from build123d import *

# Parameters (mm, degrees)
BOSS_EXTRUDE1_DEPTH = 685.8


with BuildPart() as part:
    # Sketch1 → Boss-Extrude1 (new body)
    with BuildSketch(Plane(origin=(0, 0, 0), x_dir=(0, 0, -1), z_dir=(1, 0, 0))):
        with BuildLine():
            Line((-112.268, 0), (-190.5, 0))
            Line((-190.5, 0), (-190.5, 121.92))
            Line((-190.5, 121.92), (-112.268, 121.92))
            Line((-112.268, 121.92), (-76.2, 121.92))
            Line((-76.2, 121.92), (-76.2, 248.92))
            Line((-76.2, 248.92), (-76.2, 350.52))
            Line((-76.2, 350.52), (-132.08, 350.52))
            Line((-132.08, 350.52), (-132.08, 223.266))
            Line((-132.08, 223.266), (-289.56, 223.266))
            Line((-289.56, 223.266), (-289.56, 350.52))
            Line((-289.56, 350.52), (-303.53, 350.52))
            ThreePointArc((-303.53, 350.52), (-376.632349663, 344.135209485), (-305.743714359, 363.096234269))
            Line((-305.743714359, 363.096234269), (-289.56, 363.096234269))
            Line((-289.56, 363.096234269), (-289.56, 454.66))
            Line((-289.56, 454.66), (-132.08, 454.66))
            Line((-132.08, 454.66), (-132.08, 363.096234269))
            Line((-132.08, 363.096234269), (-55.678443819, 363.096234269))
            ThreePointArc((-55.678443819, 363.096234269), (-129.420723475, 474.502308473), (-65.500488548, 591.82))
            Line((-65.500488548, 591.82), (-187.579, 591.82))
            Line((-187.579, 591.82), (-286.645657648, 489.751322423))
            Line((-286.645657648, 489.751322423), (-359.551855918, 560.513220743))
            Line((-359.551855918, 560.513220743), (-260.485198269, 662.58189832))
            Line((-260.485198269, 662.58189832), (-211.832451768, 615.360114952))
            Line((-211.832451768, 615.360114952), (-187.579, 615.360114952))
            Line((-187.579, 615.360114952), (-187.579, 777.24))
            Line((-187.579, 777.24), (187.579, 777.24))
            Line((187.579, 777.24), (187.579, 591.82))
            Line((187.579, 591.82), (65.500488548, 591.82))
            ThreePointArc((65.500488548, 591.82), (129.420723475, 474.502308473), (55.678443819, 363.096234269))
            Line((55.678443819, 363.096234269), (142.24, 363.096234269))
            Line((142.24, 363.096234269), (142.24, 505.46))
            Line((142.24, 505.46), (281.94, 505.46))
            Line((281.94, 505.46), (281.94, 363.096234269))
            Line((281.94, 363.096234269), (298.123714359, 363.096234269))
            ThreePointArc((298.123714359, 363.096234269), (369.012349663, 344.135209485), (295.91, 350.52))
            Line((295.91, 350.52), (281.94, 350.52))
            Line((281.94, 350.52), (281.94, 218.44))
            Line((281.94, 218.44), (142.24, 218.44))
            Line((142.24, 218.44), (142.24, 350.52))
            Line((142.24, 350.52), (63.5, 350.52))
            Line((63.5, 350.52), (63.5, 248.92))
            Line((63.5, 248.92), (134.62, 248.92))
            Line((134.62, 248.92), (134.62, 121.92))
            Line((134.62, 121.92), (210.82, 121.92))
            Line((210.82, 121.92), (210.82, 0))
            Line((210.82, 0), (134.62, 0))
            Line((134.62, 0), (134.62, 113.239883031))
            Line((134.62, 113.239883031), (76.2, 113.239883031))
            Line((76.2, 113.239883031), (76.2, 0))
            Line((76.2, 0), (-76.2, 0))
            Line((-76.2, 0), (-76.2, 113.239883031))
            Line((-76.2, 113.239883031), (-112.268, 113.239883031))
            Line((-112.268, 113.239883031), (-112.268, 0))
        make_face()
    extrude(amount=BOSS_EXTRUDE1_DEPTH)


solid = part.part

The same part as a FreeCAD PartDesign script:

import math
import FreeCAD as App
import Part
import Sketcher

V = App.Vector
Q = App.Units.Quantity

doc = App.newDocument("Part")
body = doc.addObject("PartDesign::Body", "Body")

# Sketch on YZ plane
sketch1 = body.newObject("Sketcher::SketchObject", "Sketch")
sketch1.AttachmentSupport = (doc.getObject("YZ_Plane"), [""])
sketch1.MapMode = "FlatFace"
sketch1.addGeometry(Part.LineSegment(V(0, 190, 0), V(0, 112, 0)), False)
sketch1.addGeometry(Part.LineSegment(V(0, 112, 0), V(113, 112, 0)), False)
sketch1.addGeometry(Part.LineSegment(V(113, 112, 0), V(113, 76, 0)), False)
sketch1.addGeometry(Part.LineSegment(V(113, 76, 0), V(0, 76, 0)), False)
sketch1.addGeometry(Part.LineSegment(V(0, 76, 0), V(0, -76, 0)), False)
sketch1.addGeometry(Part.LineSegment(V(0, -76, 0), V(113, -76, 0)), False)
sketch1.addGeometry(Part.LineSegment(V(113, -76, 0), V(113, -135, 0)), False)
sketch1.addGeometry(Part.LineSegment(V(113, -135, 0), V(0, -135, 0)), False)
sketch1.addGeometry(Part.LineSegment(V(0, -135, 0), V(0, -211, 0)), False)
sketch1.addGeometry(Part.LineSegment(V(0, -211, 0), V(122, -211, 0)), False)
sketch1.addGeometry(Part.LineSegment(V(122, -211, 0), V(122, -135, 0)), False)
sketch1.addGeometry(Part.LineSegment(V(122, -135, 0), V(249, -135, 0)), False)
sketch1.addGeometry(Part.LineSegment(V(249, -135, 0), V(249, -64, 0)), False)
sketch1.addGeometry(Part.LineSegment(V(249, -64, 0), V(351, -64, 0)), False)
sketch1.addGeometry(Part.LineSegment(V(351, -64, 0), V(351, -142, 0)), False)
sketch1.addGeometry(Part.LineSegment(V(351, -142, 0), V(218, -142, 0)), False)
sketch1.addGeometry(Part.LineSegment(V(218, -142, 0), V(218, -282, 0)), False)
sketch1.addGeometry(Part.LineSegment(V(218, -282, 0), V(351, -282, 0)), False)
sketch1.addGeometry(Part.LineSegment(V(351, -282, 0), V(351, -296, 0)), False)
sketch1.addGeometry(Part.ArcOfCircle(Part.Circle(V(351, -333, 0), V(0, 0, 1), 37), math.radians(90), math.radians(430)), False)
sketch1.addGeometry(Part.LineSegment(V(363, -298, 0), V(363, -282, 0)), False)
sketch1.addGeometry(Part.LineSegment(V(363, -282, 0), V(505, -282, 0)), False)
sketch1.addGeometry(Part.LineSegment(V(505, -282, 0), V(505, -142, 0)), False)
sketch1.addGeometry(Part.LineSegment(V(505, -142, 0), V(363, -142, 0)), False)
sketch1.addGeometry(Part.LineSegment(V(363, -142, 0), V(363, -56, 0)), False)
sketch1.addGeometry(Part.ArcOfCircle(Part.Circle(V(480, 0, 0), V(0, 0, 1), 130), math.radians(-155), math.radians(-30)), False)
sketch1.addGeometry(Part.LineSegment(V(592, -66, 0), V(592, -188, 0)), False)
sketch1.addGeometry(Part.LineSegment(V(592, -188, 0), V(777, -188, 0)), False)
sketch1.addGeometry(Part.LineSegment(V(777, -188, 0), V(777, 188, 0)), False)
sketch1.addGeometry(Part.LineSegment(V(777, 188, 0), V(615, 188, 0)), False)
sketch1.addGeometry(Part.LineSegment(V(615, 188, 0), V(615, 212, 0)), False)
sketch1.addGeometry(Part.LineSegment(V(615, 212, 0), V(663, 260, 0)), False)
sketch1.addGeometry(Part.LineSegment(V(663, 260, 0), V(561, 360, 0)), False)
sketch1.addGeometry(Part.LineSegment(V(561, 360, 0), V(490, 287, 0)), False)
sketch1.addGeometry(Part.LineSegment(V(490, 287, 0), V(592, 188, 0)), False)
sketch1.addGeometry(Part.LineSegment(V(592, 188, 0), V(592, 66, 0)), False)
sketch1.addGeometry(Part.ArcOfCircle(Part.Circle(V(480, 0, 0), V(0, 0, 1), 130), math.radians(30), math.radians(155)), False)
sketch1.addGeometry(Part.LineSegment(V(363, 56, 0), V(363, 132, 0)), False)
sketch1.addGeometry(Part.LineSegment(V(363, 132, 0), V(455, 132, 0)), False)
sketch1.addGeometry(Part.LineSegment(V(455, 132, 0), V(455, 290, 0)), False)
sketch1.addGeometry(Part.LineSegment(V(455, 290, 0), V(363, 290, 0)), False)
sketch1.addGeometry(Part.LineSegment(V(363, 290, 0), V(363, 306, 0)), False)
sketch1.addGeometry(Part.ArcOfCircle(Part.Circle(V(351, 340, 0), V(0, 0, 1), 37), math.radians(-70), math.radians(270)), False)
sketch1.addGeometry(Part.LineSegment(V(351, 304, 0), V(351, 290, 0)), False)
sketch1.addGeometry(Part.LineSegment(V(351, 290, 0), V(223, 290, 0)), False)
sketch1.addGeometry(Part.LineSegment(V(223, 290, 0), V(223, 132, 0)), False)
sketch1.addGeometry(Part.LineSegment(V(223, 132, 0), V(351, 132, 0)), False)
sketch1.addGeometry(Part.LineSegment(V(351, 132, 0), V(351, 76, 0)), False)
sketch1.addGeometry(Part.LineSegment(V(351, 76, 0), V(122, 76, 0)), False)
sketch1.addGeometry(Part.LineSegment(V(122, 76, 0), V(122, 190, 0)), False)
sketch1.addGeometry(Part.LineSegment(V(122, 190, 0), V(0, 190, 0)), False)
sketch1.addConstraint(Sketcher.Constraint("Coincident", 0, 2, 1, 1))
sketch1.addConstraint(Sketcher.Constraint("Coincident", 1, 2, 2, 1))
sketch1.addConstraint(Sketcher.Constraint("Coincident", 2, 2, 3, 1))
sketch1.addConstraint(Sketcher.Constraint("Coincident", 3, 2, 4, 1))
sketch1.addConstraint(Sketcher.Constraint("Coincident", 4, 2, 5, 1))
sketch1.addConstraint(Sketcher.Constraint("Coincident", 5, 2, 6, 1))
sketch1.addConstraint(Sketcher.Constraint("Coincident", 6, 2, 7, 1))
sketch1.addConstraint(Sketcher.Constraint("Coincident", 7, 2, 8, 1))
sketch1.addConstraint(Sketcher.Constraint("Coincident", 8, 2, 9, 1))
sketch1.addConstraint(Sketcher.Constraint("Coincident", 9, 2, 10, 1))
sketch1.addConstraint(Sketcher.Constraint("Coincident", 10, 2, 11, 1))
sketch1.addConstraint(Sketcher.Constraint("Coincident", 11, 2, 12, 1))
sketch1.addConstraint(Sketcher.Constraint("Coincident", 12, 2, 13, 1))
sketch1.addConstraint(Sketcher.Constraint("Coincident", 13, 2, 14, 1))
sketch1.addConstraint(Sketcher.Constraint("Coincident", 14, 2, 15, 1))
sketch1.addConstraint(Sketcher.Constraint("Coincident", 15, 2, 16, 1))
sketch1.addConstraint(Sketcher.Constraint("Coincident", 16, 2, 17, 1))
sketch1.addConstraint(Sketcher.Constraint("Coincident", 17, 2, 18, 1))
sketch1.addConstraint(Sketcher.Constraint("Coincident", 18, 2, 19, 1))
sketch1.addConstraint(Sketcher.Constraint("Coincident", 19, 2, 20, 1))
sketch1.addConstraint(Sketcher.Constraint("Coincident", 20, 2, 21, 1))
sketch1.addConstraint(Sketcher.Constraint("Coincident", 21, 2, 22, 1))
sketch1.addConstraint(Sketcher.Constraint("Coincident", 22, 2, 23, 1))
sketch1.addConstraint(Sketcher.Constraint("Coincident", 23, 2, 24, 1))
sketch1.addConstraint(Sketcher.Constraint("Coincident", 24, 2, 25, 1))
sketch1.addConstraint(Sketcher.Constraint("Coincident", 25, 2, 26, 1))
sketch1.addConstraint(Sketcher.Constraint("Coincident", 26, 2, 27, 1))
sketch1.addConstraint(Sketcher.Constraint("Coincident", 27, 2, 28, 1))
sketch1.addConstraint(Sketcher.Constraint("Coincident", 28, 2, 29, 1))
sketch1.addConstraint(Sketcher.Constraint("Coincident", 29, 2, 30, 1))
sketch1.addConstraint(Sketcher.Constraint("Coincident", 30, 2, 31, 1))
sketch1.addConstraint(Sketcher.Constraint("Coincident", 31, 2, 32, 1))
sketch1.addConstraint(Sketcher.Constraint("Coincident", 32, 2, 33, 1))
sketch1.addConstraint(Sketcher.Constraint("Coincident", 33, 2, 34, 1))
sketch1.addConstraint(Sketcher.Constraint("Coincident", 34, 2, 35, 1))
sketch1.addConstraint(Sketcher.Constraint("Coincident", 35, 2, 36, 1))
sketch1.addConstraint(Sketcher.Constraint("Coincident", 36, 2, 37, 1))
sketch1.addConstraint(Sketcher.Constraint("Coincident", 37, 2, 38, 1))
sketch1.addConstraint(Sketcher.Constraint("Coincident", 38, 2, 39, 1))
sketch1.addConstraint(Sketcher.Constraint("Coincident", 39, 2, 40, 1))
sketch1.addConstraint(Sketcher.Constraint("Coincident", 40, 2, 41, 1))
sketch1.addConstraint(Sketcher.Constraint("Coincident", 41, 2, 42, 1))
sketch1.addConstraint(Sketcher.Constraint("Coincident", 42, 2, 43, 1))
sketch1.addConstraint(Sketcher.Constraint("Coincident", 43, 2, 44, 1))
sketch1.addConstraint(Sketcher.Constraint("Coincident", 44, 2, 45, 1))
sketch1.addConstraint(Sketcher.Constraint("Coincident", 45, 2, 46, 1))
sketch1.addConstraint(Sketcher.Constraint("Coincident", 46, 2, 47, 1))
sketch1.addConstraint(Sketcher.Constraint("Coincident", 47, 2, 48, 1))
sketch1.addConstraint(Sketcher.Constraint("Coincident", 48, 2, 49, 1))
sketch1.addConstraint(Sketcher.Constraint("Coincident", 49, 2, 50, 1))
sketch1.addConstraint(Sketcher.Constraint("Coincident", 50, 2, 0, 1))
sketch1.addConstraint(Sketcher.Constraint("Vertical", 0))
sketch1.addConstraint(Sketcher.Constraint("Horizontal", 1))
sketch1.addConstraint(Sketcher.Constraint("Vertical", 2))
sketch1.addConstraint(Sketcher.Constraint("Horizontal", 3))
sketch1.addConstraint(Sketcher.Constraint("Vertical", 4))
sketch1.addConstraint(Sketcher.Constraint("Horizontal", 5))
sketch1.addConstraint(Sketcher.Constraint("Vertical", 6))
sketch1.addConstraint(Sketcher.Constraint("Horizontal", 7))
sketch1.addConstraint(Sketcher.Constraint("Vertical", 8))
sketch1.addConstraint(Sketcher.Constraint("Horizontal", 9))
sketch1.addConstraint(Sketcher.Constraint("Vertical", 10))
sketch1.addConstraint(Sketcher.Constraint("Horizontal", 11))
sketch1.addConstraint(Sketcher.Constraint("Vertical", 12))
sketch1.addConstraint(Sketcher.Constraint("Horizontal", 13))
sketch1.addConstraint(Sketcher.Constraint("Vertical", 14))
sketch1.addConstraint(Sketcher.Constraint("Horizontal", 15))
sketch1.addConstraint(Sketcher.Constraint("Vertical", 16))
sketch1.addConstraint(Sketcher.Constraint("Horizontal", 17))
sketch1.addConstraint(Sketcher.Constraint("Vertical", 18))
sketch1.addConstraint(Sketcher.Constraint("Vertical", 20))
sketch1.addConstraint(Sketcher.Constraint("Horizontal", 21))
sketch1.addConstraint(Sketcher.Constraint("Vertical", 22))
sketch1.addConstraint(Sketcher.Constraint("Horizontal", 23))
sketch1.addConstraint(Sketcher.Constraint("Vertical", 24))
sketch1.addConstraint(Sketcher.Constraint("Vertical", 26))
sketch1.addConstraint(Sketcher.Constraint("Horizontal", 27))
sketch1.addConstraint(Sketcher.Constraint("Vertical", 28))
sketch1.addConstraint(Sketcher.Constraint("Horizontal", 29))
sketch1.addConstraint(Sketcher.Constraint("Vertical", 30))
sketch1.addConstraint(Sketcher.Constraint("Vertical", 35))
sketch1.addConstraint(Sketcher.Constraint("Vertical", 37))
sketch1.addConstraint(Sketcher.Constraint("Horizontal", 38))
sketch1.addConstraint(Sketcher.Constraint("Vertical", 39))
sketch1.addConstraint(Sketcher.Constraint("Horizontal", 40))
sketch1.addConstraint(Sketcher.Constraint("Vertical", 41))
sketch1.addConstraint(Sketcher.Constraint("Vertical", 43))
sketch1.addConstraint(Sketcher.Constraint("Horizontal", 44))
sketch1.addConstraint(Sketcher.Constraint("Vertical", 45))
sketch1.addConstraint(Sketcher.Constraint("Horizontal", 46))
sketch1.addConstraint(Sketcher.Constraint("Vertical", 47))
sketch1.addConstraint(Sketcher.Constraint("Horizontal", 48))
sketch1.addConstraint(Sketcher.Constraint("Vertical", 49))
sketch1.addConstraint(Sketcher.Constraint("Horizontal", 50))
sketch1.addConstraint(Sketcher.Constraint("Coincident", 36, 3, 25, 3))
sketch1.addConstraint(Sketcher.Constraint("Equal", 25, 36))
sketch1.addConstraint(Sketcher.Constraint("Equal", 19, 42))
sketch1.addConstraint(Sketcher.Constraint("Symmetric", 3, 2, 4, 2, -1, 1))
sketch1.addConstraint(Sketcher.Constraint("Symmetric", 26, 2, 34, 2, -1))
sketch1.addConstraint(Sketcher.Constraint("Symmetric", 24, 2, 36, 2, -1))
sketch1.addConstraint(Sketcher.Constraint("PointOnObject", 0, 2, -2))
sketch1.addConstraint(Sketcher.Constraint("PointOnObject", 7, 2, -2))
sketch1.addConstraint(Sketcher.Constraint("Perpendicular", 31, 32))
sketch1.addConstraint(Sketcher.Constraint("Perpendicular", 32, 33))
sketch1.addConstraint(Sketcher.Constraint("Perpendicular", 33, 34))
sketch1.addConstraint(Sketcher.Constraint("Horizontal", 7, 2, 10, 2))
sketch1.addConstraint(Sketcher.Constraint("Horizontal", 17, 2, 20, 2))
sketch1.addConstraint(Sketcher.Constraint("Horizontal", 15, 2, 22, 2))
sketch1.addConstraint(Sketcher.Constraint("Horizontal", 29, 2, 34, 2))
sketch1.addConstraint(Sketcher.Constraint("Horizontal", 40, 2, 43, 2))
sketch1.addConstraint(Sketcher.Constraint("Horizontal", 38, 2, 45, 2))
sketch1.addConstraint(Sketcher.Constraint("Horizontal", 3, 2, 47, 2))
sketch1.addConstraint(Sketcher.Constraint("Vertical", 19, 3, 42, 3))
sketch1.addConstraint(Sketcher.Constraint("Vertical", 2, 2, 5, 2))
sketch1.addConstraint(Sketcher.Constraint("Vertical", 42, 3, 13, 2))
sketch1.addConstraint(Sketcher.Constraint("Vertical", 14, 2, 17, 2))
sketch1.addConstraint(Sketcher.Constraint("Vertical", 20, 2, 23, 2))
sketch1.addConstraint(Sketcher.Constraint("Vertical", 37, 2, 40, 2))
sketch1.addConstraint(Sketcher.Constraint("Vertical", 18, 2, 42, 2))
sketch1.addConstraint(Sketcher.Constraint("Vertical", 43, 2, 46, 2))
sketch1.addConstraint(Sketcher.Constraint("Vertical", 10, 2, 48, 2))
sketch1.addConstraint(Sketcher.Constraint("Equal", 20, 41))
sketch1.addConstraint(Sketcher.Constraint("Equal", 32, 34))
sketch1.addConstraint(Sketcher.Constraint("Radius", 25, Q("5.1 in")))
sketch1.addConstraint(Sketcher.Constraint("DistanceX", 11, 1, 11, 2, Q("5 in")))
sketch1.addConstraint(Sketcher.Constraint("DistanceX", 13, 1, 13, 2, Q("4 in")))
sketch1.addConstraint(Sketcher.Constraint("DistanceY", 4, 2, 4, 1, Q("6 in")))
sketch1.addConstraint(Sketcher.Constraint("DistanceY", 8, 2, 8, 1, Q("3 in")))
sketch1.addConstraint(Sketcher.Constraint("Radius", 19, Q("1.45 in")))
sketch1.addConstraint(Sketcher.Constraint("Distance", 33, Q("4 in")))
sketch1.addConstraint(Sketcher.Constraint("DistanceX", 9, 1, 9, 2, Q("4.8 in")))
sketch1.addConstraint(Sketcher.Constraint("DistanceX", 15, 2, 15, 1, Q("5.2 in")))
sketch1.addConstraint(Sketcher.Constraint("DistanceX", 27, 1, 27, 2, Q("7.3 in")))
sketch1.addConstraint(Sketcher.Constraint("DistanceY", 6, 2, 6, 1, Q("2.3 in")))
sketch1.addConstraint(Sketcher.Constraint("DistanceY", 12, 1, 12, 2, Q("2.8 in")))
sketch1.addConstraint(Sketcher.Constraint("DistanceY", 14, 2, 14, 1, Q("3.1 in")))
sketch1.addConstraint(Sketcher.Constraint("DistanceY", 16, 2, 16, 1, Q("5.5 in")))
sketch1.addConstraint(Sketcher.Constraint("DistanceY", 39, 1, 39, 2, Q("6.2 in")))
sketch1.addConstraint(Sketcher.Constraint("DistanceY", 47, 2, 47, 1, Q("2.2 in")))
sketch1.addConstraint(Sketcher.Constraint("DistanceY", 49, 1, 49, 2, Q("4.5 in")))
sketch1.addConstraint(Sketcher.Constraint("DistanceY", 19, 3, 16, 2, Q("2 in")))
sketch1.addConstraint(Sketcher.Constraint("DistanceX", 36, 3, 22, 2, Q("1 in")))
sketch1.addConstraint(Sketcher.Constraint("DistanceX", 38, 2, 25, 3, Q("1 in")))
sketch1.addConstraint(Sketcher.Constraint("Distance", 32, Q("5.6 in")))
sketch1.addConstraint(Sketcher.Constraint("DistanceX", 44, 2, 44, 1, Q("5.01 in")))
sketch1.addConstraint(Sketcher.Constraint("DistanceY", 0, 2, 0, 1, Q("3.08 in")))
sketch1.addConstraint(Sketcher.Constraint("DistanceY", 28, 1, 28, 2, Q("14.77 in")))
sketch1.addConstraint(Sketcher.Constraint("DistanceX", -1, 1, 25, 3, Q("18.9 in")))
sketch1.addConstraint(Sketcher.Constraint("DistanceX", -1, 1, 25, 2, Q("23.3 in")))
sketch1.addConstraint(Sketcher.Constraint("DistanceY", 30, 1, 30, 2, 24.253452))
sketch1.addConstraint(Sketcher.Constraint("DistanceX", -1, 1, 31, 2, 662.581898))
sketch1.addConstraint(Sketcher.Constraint("DistanceX", 1, 1, 1, 2, 113.239883))
sketch1.addConstraint(Sketcher.Constraint("DistanceX", 21, 1, 21, 2, 142.363766))
pad1 = body.newObject("PartDesign::Pad", "Pad")
pad1.Profile = sketch1
pad1.Length = Q("27 in")

doc.recompute()
